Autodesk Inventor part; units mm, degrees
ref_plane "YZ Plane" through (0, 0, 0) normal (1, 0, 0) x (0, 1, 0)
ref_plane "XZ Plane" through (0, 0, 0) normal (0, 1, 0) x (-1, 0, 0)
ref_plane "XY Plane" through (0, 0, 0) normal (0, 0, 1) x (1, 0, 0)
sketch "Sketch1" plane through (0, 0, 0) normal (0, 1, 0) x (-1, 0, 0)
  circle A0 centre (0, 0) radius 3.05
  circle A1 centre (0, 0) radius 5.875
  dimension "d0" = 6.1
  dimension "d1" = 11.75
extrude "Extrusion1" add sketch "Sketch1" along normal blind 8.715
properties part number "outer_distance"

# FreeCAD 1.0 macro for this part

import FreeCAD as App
import Part
import Sketcher

V = App.Vector
Q = App.Units.Quantity

doc = App.newDocument("Part")
body = doc.addObject("PartDesign::Body", "Body")

sketch1 = body.newObject("Sketcher::SketchObject", "Sketch")
sketch1.AttachmentSupport = (doc.getObject("XZ_Plane"), [""])
sketch1.MapMode = "FlatFace"
sketch1.addGeometry([
    Part.Circle(V(0, 0, 0), V(0, 0, 1), 5.9),
    Part.Circle(V(0, 0, 0), V(0, 0, 1), 3),
], False)
sketch1.addConstraint([
    Sketcher.Constraint("Coincident", 0, 3, -1, 1),
    Sketcher.Constraint("Coincident", 1, 3, -1, 1),
    Sketcher.Constraint("Diameter", 1, Q("6.1 mm")),
    Sketcher.Constraint("Diameter", 0, Q("11.75 mm")),
])
pad1 = body.newObject("PartDesign::Pad", "Pad")
pad1.Profile = sketch1
pad1.Length = 8.715
pad1.Reversed = True

doc.recompute()
